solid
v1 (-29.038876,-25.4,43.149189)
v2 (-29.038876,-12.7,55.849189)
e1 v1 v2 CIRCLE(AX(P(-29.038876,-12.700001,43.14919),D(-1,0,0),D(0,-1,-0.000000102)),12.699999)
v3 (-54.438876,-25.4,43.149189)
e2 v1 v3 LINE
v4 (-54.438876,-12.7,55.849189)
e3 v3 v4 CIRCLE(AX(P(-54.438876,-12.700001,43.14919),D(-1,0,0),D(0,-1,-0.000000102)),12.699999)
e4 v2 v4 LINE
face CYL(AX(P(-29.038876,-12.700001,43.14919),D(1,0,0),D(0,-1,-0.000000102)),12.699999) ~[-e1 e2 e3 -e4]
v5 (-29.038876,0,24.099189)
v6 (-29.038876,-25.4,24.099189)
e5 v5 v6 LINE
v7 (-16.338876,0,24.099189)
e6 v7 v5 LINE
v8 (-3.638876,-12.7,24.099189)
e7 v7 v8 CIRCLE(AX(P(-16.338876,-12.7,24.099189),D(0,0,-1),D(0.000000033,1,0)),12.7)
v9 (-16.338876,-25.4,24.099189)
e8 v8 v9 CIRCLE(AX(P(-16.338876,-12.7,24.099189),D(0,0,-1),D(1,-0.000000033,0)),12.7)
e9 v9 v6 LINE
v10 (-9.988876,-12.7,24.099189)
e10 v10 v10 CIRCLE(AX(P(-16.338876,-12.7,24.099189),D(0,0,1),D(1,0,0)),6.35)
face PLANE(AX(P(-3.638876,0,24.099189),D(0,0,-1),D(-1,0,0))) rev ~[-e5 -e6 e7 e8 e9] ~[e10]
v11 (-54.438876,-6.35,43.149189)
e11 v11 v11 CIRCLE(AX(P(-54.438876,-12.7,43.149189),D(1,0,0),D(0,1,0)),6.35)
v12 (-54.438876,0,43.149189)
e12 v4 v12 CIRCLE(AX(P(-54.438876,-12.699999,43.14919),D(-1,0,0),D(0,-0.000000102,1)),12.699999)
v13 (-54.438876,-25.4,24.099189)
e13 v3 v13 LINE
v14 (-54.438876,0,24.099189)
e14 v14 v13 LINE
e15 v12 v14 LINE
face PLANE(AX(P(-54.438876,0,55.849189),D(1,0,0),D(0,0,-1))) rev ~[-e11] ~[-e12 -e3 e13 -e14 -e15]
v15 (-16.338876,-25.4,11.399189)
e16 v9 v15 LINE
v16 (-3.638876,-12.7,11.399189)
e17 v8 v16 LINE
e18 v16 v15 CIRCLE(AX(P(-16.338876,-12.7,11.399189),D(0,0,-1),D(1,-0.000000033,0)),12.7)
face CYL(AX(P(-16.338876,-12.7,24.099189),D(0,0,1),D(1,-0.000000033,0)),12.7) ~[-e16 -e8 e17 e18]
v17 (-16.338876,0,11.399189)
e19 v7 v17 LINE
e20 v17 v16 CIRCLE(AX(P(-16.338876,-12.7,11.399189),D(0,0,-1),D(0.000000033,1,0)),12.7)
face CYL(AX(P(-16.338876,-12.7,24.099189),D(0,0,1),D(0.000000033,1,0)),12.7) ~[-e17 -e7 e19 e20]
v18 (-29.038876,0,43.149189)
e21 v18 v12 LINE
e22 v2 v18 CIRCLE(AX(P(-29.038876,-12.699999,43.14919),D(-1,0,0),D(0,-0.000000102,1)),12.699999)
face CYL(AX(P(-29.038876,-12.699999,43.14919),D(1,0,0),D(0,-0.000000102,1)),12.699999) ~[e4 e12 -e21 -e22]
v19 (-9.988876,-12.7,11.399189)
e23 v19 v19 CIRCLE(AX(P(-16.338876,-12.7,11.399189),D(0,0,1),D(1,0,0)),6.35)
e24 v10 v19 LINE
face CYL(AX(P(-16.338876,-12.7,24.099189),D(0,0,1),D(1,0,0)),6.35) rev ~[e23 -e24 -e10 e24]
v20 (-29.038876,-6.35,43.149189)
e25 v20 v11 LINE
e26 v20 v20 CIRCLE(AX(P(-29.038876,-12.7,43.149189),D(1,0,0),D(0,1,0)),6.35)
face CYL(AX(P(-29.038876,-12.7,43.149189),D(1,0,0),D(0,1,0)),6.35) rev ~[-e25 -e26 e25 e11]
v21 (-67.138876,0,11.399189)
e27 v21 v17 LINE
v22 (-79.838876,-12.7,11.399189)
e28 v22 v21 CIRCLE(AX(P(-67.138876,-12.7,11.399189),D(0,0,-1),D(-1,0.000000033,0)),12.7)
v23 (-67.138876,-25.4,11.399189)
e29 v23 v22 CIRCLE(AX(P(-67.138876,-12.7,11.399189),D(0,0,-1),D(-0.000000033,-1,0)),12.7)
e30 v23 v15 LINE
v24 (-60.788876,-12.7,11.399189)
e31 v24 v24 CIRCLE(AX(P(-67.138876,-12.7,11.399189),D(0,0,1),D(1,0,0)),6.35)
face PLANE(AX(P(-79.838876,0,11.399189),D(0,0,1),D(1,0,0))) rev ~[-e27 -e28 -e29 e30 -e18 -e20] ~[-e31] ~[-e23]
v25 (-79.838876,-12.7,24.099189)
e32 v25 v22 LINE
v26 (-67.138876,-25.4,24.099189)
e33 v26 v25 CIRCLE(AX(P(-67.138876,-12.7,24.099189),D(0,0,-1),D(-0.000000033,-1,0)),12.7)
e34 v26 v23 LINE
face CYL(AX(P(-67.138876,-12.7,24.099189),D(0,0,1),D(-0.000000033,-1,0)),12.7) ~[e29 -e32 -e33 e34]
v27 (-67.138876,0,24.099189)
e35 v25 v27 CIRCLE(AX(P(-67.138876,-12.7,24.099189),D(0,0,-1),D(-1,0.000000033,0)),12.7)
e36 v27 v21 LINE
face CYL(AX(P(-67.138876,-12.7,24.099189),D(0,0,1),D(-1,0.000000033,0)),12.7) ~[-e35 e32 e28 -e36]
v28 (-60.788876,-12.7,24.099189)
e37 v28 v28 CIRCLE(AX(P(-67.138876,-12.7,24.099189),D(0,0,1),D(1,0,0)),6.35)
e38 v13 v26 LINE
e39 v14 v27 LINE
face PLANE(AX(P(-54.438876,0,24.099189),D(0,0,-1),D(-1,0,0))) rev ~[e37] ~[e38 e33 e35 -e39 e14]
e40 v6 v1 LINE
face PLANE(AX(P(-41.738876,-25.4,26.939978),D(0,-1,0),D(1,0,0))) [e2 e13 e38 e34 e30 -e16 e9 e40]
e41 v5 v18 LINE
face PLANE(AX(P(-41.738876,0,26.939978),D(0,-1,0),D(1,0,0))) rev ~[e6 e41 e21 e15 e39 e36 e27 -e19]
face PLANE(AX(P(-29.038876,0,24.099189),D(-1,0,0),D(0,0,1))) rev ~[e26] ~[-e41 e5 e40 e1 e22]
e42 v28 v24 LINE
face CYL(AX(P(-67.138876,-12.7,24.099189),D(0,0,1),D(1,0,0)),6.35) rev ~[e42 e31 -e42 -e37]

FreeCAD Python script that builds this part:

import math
import FreeCAD as App
import Part
import Sketcher

V = App.Vector
Q = App.Units.Quantity

doc = App.newDocument("Part")
body = doc.addObject("PartDesign::Body", "Body")

# Sketch on XZ plane
sketch1 = body.newObject("Sketcher::SketchObject", "Sketch")
sketch1.AttachmentSupport = (doc.getObject("XZ_Plane"), [""])
sketch1.MapMode = "FlatFace"
sketch1.addGeometry([
    Part.LineSegment(V(-29, 56, 0), V(-54, 56, 0)),  # 0
    Part.LineSegment(V(-54, 56, 0), V(-54, 24, 0)),  # 1
    Part.LineSegment(V(-54, 24, 0), V(-80, 24, 0)),  # 2
    Part.LineSegment(V(-80, 24, 0), V(-80, 11, 0)),  # 3
    Part.LineSegment(V(-80, 11, 0), V(-4, 11, 0)),  # 4
    Part.LineSegment(V(-4, 11, 0), V(-4, 24, 0)),  # 5
    Part.LineSegment(V(-4, 24, 0), V(-29, 24, 0)),  # 6
    Part.LineSegment(V(-29, 24, 0), V(-29, 56, 0)),  # 7
], False)
sketch1.addConstraint([
    Sketcher.Constraint("Coincident", 0, 2, 1, 1),
    Sketcher.Constraint("Coincident", 1, 2, 2, 1),
    Sketcher.Constraint("Coincident", 2, 2, 3, 1),
    Sketcher.Constraint("Coincident", 3, 2, 4, 1),
    Sketcher.Constraint("Coincident", 4, 2, 5, 1),
    Sketcher.Constraint("Coincident", 5, 2, 6, 1),
    Sketcher.Constraint("Coincident", 6, 2, 7, 1),
    Sketcher.Constraint("Coincident", 7, 2, 0, 1),
    Sketcher.Constraint("Horizontal", 0),
    Sketcher.Constraint("Vertical", 1),
    Sketcher.Constraint("Horizontal", 2),
    Sketcher.Constraint("Vertical", 3),
    Sketcher.Constraint("Horizontal", 4),
    Sketcher.Constraint("Vertical", 5),
    Sketcher.Constraint("Horizontal", 6),
    Sketcher.Constraint("Vertical", 7),
    Sketcher.Constraint("Horizontal", 2, 2, 5, 2),
    Sketcher.Constraint("Equal", 0, 2),
    Sketcher.Constraint("Equal", 2, 6),
    Sketcher.Constraint("DistanceX", 0, 2, 0, 1, Q("1 in")),
    Sketcher.Constraint("DistanceY", 3, 2, 3, 1, Q("0.5 in")),
    Sketcher.Constraint("DistanceY", 1, 2, 1, 1, Q("1.25 in")),
    Sketcher.Constraint("DistanceY", -1, 1, 0, 2, 55.849189),
    Sketcher.Constraint("DistanceX", 0, 2, -1, 1, 54.438876),
])
pad1 = body.newObject("PartDesign::Pad", "Pad")
pad1.Profile = sketch1
pad1.Length = Q("1 in")

# Sketch on YZ plane
sketch2 = body.newObject("Sketcher::SketchObject", "Sketch001")
sketch2.AttachmentSupport = (doc.getObject("YZ_Plane"), [""])
sketch2.MapMode = "FlatFace"
sketch2.AttachmentOffset = App.Placement(V(0, 0, -29.038876), App.Rotation())
sketch2.addGeometry([
    Part.Circle(V(-13, 43, 0), V(0, 0, 1), 6),  # 0
    Part.LineSegment(V(-25, 56, 0), V(-25, 43, 0)),  # 1
    Part.ArcOfCircle(Part.Circle(V(-13, 43, 0), V(0, 0, 1), 13), math.radians(90), math.radians(180)),  # 2
    Part.LineSegment(V(-13, 56, 0), V(-25, 56, 0)),  # 3
    Part.LineSegment(V(0, 56, 0), V(-13, 56, 0)),  # 4
    Part.ArcOfCircle(Part.Circle(V(-13, 43, 0), V(0, 0, 1), 13), math.radians(0), math.radians(90)),  # 5
    Part.LineSegment(V(0, 43, 0), V(0, 56, 0)),  # 6
], False)
sketch2.addConstraint([
    Sketcher.Constraint("Tangent", 1, 2, 2, 2),
    Sketcher.Constraint("Tangent", 2, 1, 3, 1),
    Sketcher.Constraint("Coincident", 3, 2, 1, 1),
    Sketcher.Constraint("Tangent", 4, 2, 5, 2),
    Sketcher.Constraint("Tangent", 5, 1, 6, 1),
    Sketcher.Constraint("Coincident", 6, 2, 4, 1),
    Sketcher.Constraint("Vertical", 1),
    Sketcher.Constraint("Horizontal", 3),
    Sketcher.Constraint("Horizontal", 4),
    Sketcher.Constraint("Vertical", 6),
    Sketcher.Constraint("Coincident", 2, 3, 0, 3),
    Sketcher.Constraint("Coincident", 5, 3, 0, 3),
    Sketcher.Constraint("Equal", 2, 5),
    Sketcher.Constraint("PointOnObject", 5, 1, -2),
    Sketcher.Constraint("Diameter", 0, Q("0.5 in")),
    Sketcher.Constraint("Radius", 2, Q("0.4999999 in")),
    Sketcher.Constraint("DistanceY", -1, 1, 0, 3, 43.149189),
])
pocket1 = body.newObject("PartDesign::Pocket", "Pocket")
pocket1.Profile = sketch2
pocket1.Length = Q("1 in")

# Sketch on XY plane
sketch3 = body.newObject("Sketcher::SketchObject", "Sketch002")
sketch3.AttachmentSupport = (doc.getObject("XY_Plane"), [""])
sketch3.MapMode = "FlatFace"
sketch3.AttachmentOffset = App.Placement(V(0, 0, 24.099189), App.Rotation())
sketch3.addGeometry([
    Part.Circle(V(-16, -13, 0), V(0, 0, 1), 6),  # 0
    Part.LineSegment(V(-4, -25, 0), V(-4, -13, 0)),  # 1
    Part.ArcOfCircle(Part.Circle(V(-16, -13, 0), V(0, 0, 1), 13), math.radians(-90), math.radians(0)),  # 2
    Part.LineSegment(V(-16, -25, 0), V(-4, -25, 0)),  # 3
    Part.LineSegment(V(-4, 0, 0), V(-16, 0, 0)),  # 4
    Part.ArcOfCircle(Part.Circle(V(-16, -13, 0), V(0, 0, 1), 13), math.radians(0), math.radians(90)),  # 5
    Part.LineSegment(V(-4, -13, 0), V(-4, 0, 0)),  # 6
    Part.ArcOfCircle(Part.Circle(V(-67, -13, 0), V(0, 0, 1), 13), math.radians(-180), math.radians(-90)),  # 7
    Part.LineSegment(V(-80, -13, 0), V(-80, -25, 0)),  # 8
    Part.LineSegment(V(-80, -25, 0), V(-67, -25, 0)),  # 9
    Part.ArcOfCircle(Part.Circle(V(-67, -13, 0), V(0, 0, 1), 13), math.radians(90), math.radians(180)),  # 10
    Part.LineSegment(V(-67, 0, 0), V(-80, 0, 0)),  # 11
    Part.LineSegment(V(-80, 0, 0), V(-80, -13, 0)),  # 12
    Part.Circle(V(-67, -13, 0), V(0, 0, 1), 6),  # 13
], False)
sketch3.addConstraint([
    Sketcher.Constraint("Tangent", 1, 2, 2, 2),
    Sketcher.Constraint("Tangent", 2, 1, 3, 1),
    Sketcher.Constraint("Coincident", 3, 2, 1, 1),
    Sketcher.Constraint("Tangent", 4, 2, 5, 2),
    Sketcher.Constraint("Tangent", 5, 1, 6, 1),
    Sketcher.Constraint("Coincident", 6, 2, 4, 1),
    Sketcher.Constraint("Tangent", 7, 1, 8, 1),
    Sketcher.Constraint("Coincident", 8, 2, 9, 1),
    Sketcher.Constraint("Tangent", 9, 2, 7, 2),
    Sketcher.Constraint("Tangent", 10, 1, 11, 1),
    Sketcher.Constraint("Coincident", 11, 2, 12, 1),
    Sketcher.Constraint("Tangent", 12, 2, 10, 2),
    Sketcher.Constraint("Vertical", 1),
    Sketcher.Constraint("Horizontal", 3),
    Sketcher.Constraint("Horizontal", 4),
    Sketcher.Constraint("Vertical", 6),
    Sketcher.Constraint("Vertical", 8),
    Sketcher.Constraint("Horizontal", 9),
    Sketcher.Constraint("Horizontal", 11),
    Sketcher.Constraint("Vertical", 12),
    Sketcher.Constraint("Coincident", 2, 3, 0, 3),
    Sketcher.Constraint("Coincident", 5, 3, 0, 3),
    Sketcher.Constraint("Coincident", 10, 3, 7, 3),
    Sketcher.Constraint("Coincident", 13, 3, 7, 3),
    Sketcher.Constraint("Equal", 2, 5),
    Sketcher.Constraint("Equal", 5, 7),
    Sketcher.Constraint("Equal", 7, 10),
    Sketcher.Constraint("Equal", 0, 13),
    Sketcher.Constraint("PointOnObject", 4, 2, -1),
    Sketcher.Constraint("PointOnObject", 10, 1, -1),
    Sketcher.Constraint("Diameter", 0, Q("0.5 in")),
    Sketcher.Constraint("Radius", 2, Q("0.5 in")),
    Sketcher.Constraint("DistanceX", 7, 3, 2, 3, Q("2 in")),
    Sketcher.Constraint("DistanceX", 0, 3, -1, 1, 16.338876),
])
pocket2 = body.newObject("PartDesign::Pocket", "Pocket001")
pocket2.Profile = sketch3
pocket2.Length = Q("0.5 in")

doc.recompute()
